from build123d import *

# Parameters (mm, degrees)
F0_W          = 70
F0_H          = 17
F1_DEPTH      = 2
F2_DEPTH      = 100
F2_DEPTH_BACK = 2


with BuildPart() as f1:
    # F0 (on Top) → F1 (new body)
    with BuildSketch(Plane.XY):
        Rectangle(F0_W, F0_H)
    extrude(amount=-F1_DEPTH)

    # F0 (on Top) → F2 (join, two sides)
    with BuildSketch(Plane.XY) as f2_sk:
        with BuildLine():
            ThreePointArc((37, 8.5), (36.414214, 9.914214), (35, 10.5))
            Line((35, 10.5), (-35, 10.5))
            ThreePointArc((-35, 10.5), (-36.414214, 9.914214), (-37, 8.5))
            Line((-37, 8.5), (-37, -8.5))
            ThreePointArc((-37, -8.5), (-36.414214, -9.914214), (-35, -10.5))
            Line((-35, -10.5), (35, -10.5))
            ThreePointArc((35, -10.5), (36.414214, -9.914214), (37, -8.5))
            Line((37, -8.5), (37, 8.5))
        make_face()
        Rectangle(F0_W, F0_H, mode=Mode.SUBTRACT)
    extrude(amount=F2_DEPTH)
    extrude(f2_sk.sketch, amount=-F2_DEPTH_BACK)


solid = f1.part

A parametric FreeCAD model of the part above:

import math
import FreeCAD as App
import Part
import Sketcher

doc = App.newDocument("Part")
params = doc.addObject("Spreadsheet::Sheet", "Params")
for row, (alias, value) in enumerate([
    ("sketch1_width", "70 mm"),
    ("sketch1_height", "17 mm"),
    ("pad1_length", "2 mm"),
    ("sketch2_radius", "1.999999 mm"),
    ("sketch2_width", "70 mm"),
    ("sketch2_height", "17 mm"),
    ("pad2_length", "100 mm"),
    ("pad2_length2", "2 mm"),
], start=1):
    params.set(f"A{row}", alias)
    params.set(f"B{row}", "=" + value)
    params.setAlias(f"B{row}", alias)

body = doc.addObject("PartDesign::Body", "Body")

sketch1 = body.newObject("Sketcher::SketchObject", "Sketch")
sketch1.AttachmentSupport = (doc.getObject("XY_Plane"), [""])
sketch1.MapMode = "FlatFace"
sketch1.addGeometry([
    Part.LineSegment(App.Vector(-35, 8, 0), App.Vector(-35, -8, 0)),
    Part.LineSegment(App.Vector(-35, -8, 0), App.Vector(35, -8, 0)),
    Part.LineSegment(App.Vector(35, -8, 0), App.Vector(35, 8, 0)),
    Part.LineSegment(App.Vector(35, 8, 0), App.Vector(-35, 8, 0)),
], False)
sketch1.addConstraint([
    Sketcher.Constraint("Coincident", 0, 2, 1, 1),
    Sketcher.Constraint("Coincident", 1, 2, 2, 1),
    Sketcher.Constraint("Coincident", 2, 2, 3, 1),
    Sketcher.Constraint("Coincident", 3, 2, 0, 1),
    Sketcher.Constraint("Vertical", 0),
    Sketcher.Constraint("Horizontal", 1),
    Sketcher.Constraint("Vertical", 2),
    Sketcher.Constraint("Horizontal", 3),
    Sketcher.Constraint("Symmetric", 0, 2, 2, 2, -1, 1),
    Sketcher.Constraint("DistanceX", 1, 1, 1, 2, 70.0),
    Sketcher.Constraint("DistanceY", 0, 2, 0, 1, 17.0),
])
sketch1.setExpression("Constraints[9]", "Params.sketch1_width")
sketch1.setExpression("Constraints[10]", "Params.sketch1_height")
pad1 = body.newObject("PartDesign::Pad", "Pad")
pad1.Profile = sketch1
pad1.setExpression("Length", "Params.pad1_length")
pad1.Reversed = True

sketch2 = body.newObject("Sketcher::SketchObject", "Sketch001")
sketch2.AttachmentSupport = (doc.getObject("XY_Plane"), [""])
sketch2.MapMode = "FlatFace"
sketch2.addGeometry([
    Part.ArcOfCircle(Part.Circle(App.Vector(35, 8.5, 0), App.Vector(0, 0, 1), 2), math.radians(0), math.radians(90)),
    Part.LineSegment(App.Vector(35, 10.5, 0), App.Vector(-35, 10.5, 0)),
    Part.ArcOfCircle(Part.Circle(App.Vector(-35, 8.5, 0), App.Vector(0, 0, 1), 2), math.radians(90), math.radians(180)),
    Part.LineSegment(App.Vector(-37, 8.5, 0), App.Vector(-37, -8.5, 0)),
    Part.ArcOfCircle(Part.Circle(App.Vector(-35, -8.5, 0), App.Vector(0, 0, 1), 2), math.radians(180), math.radians(270)),
    Part.LineSegment(App.Vector(-35, -10.5, 0), App.Vector(35, -10.5, 0)),
    Part.ArcOfCircle(Part.Circle(App.Vector(35, -8.5, 0), App.Vector(0, 0, 1), 2), math.radians(-90), math.radians(0)),
    Part.LineSegment(App.Vector(37, -8.5, 0), App.Vector(37, 8.5, 0)),
    Part.LineSegment(App.Vector(35, -8.5, 0), App.Vector(-35, -8.5, 0)),
    Part.LineSegment(App.Vector(-35, -8.5, 0), App.Vector(-35, 8.5, 0)),
    Part.LineSegment(App.Vector(-35, 8.5, 0), App.Vector(35, 8.5, 0)),
    Part.LineSegment(App.Vector(35, 8.5, 0), App.Vector(35, -8.5, 0)),
], False)
sketch2.addConstraint([
    Sketcher.Constraint("Tangent", 0, 2, 1, 1),
    Sketcher.Constraint("Tangent", 1, 2, 2, 1),
    Sketcher.Constraint("Tangent", 2, 2, 3, 1),
    Sketcher.Constraint("Tangent", 3, 2, 4, 1),
    Sketcher.Constraint("Tangent", 4, 2, 5, 1),
    Sketcher.Constraint("Tangent", 5, 2, 6, 1),
    Sketcher.Constraint("Tangent", 6, 2, 7, 1),
    Sketcher.Constraint("Tangent", 7, 2, 0, 1),
    Sketcher.Constraint("Coincident", 8, 2, 9, 1),
    Sketcher.Constraint("Coincident", 9, 2, 10, 1),
    Sketcher.Constraint("Coincident", 10, 2, 11, 1),
    Sketcher.Constraint("Coincident", 11, 2, 8, 1),
    Sketcher.Constraint("Horizontal", 1),
    Sketcher.Constraint("Vertical", 3),
    Sketcher.Constraint("Horizontal", 5),
    Sketcher.Constraint("Vertical", 7),
    Sketcher.Constraint("Horizontal", 8),
    Sketcher.Constraint("Vertical", 9),
    Sketcher.Constraint("Horizontal", 10),
    Sketcher.Constraint("Vertical", 11),
    Sketcher.Constraint("Coincident", 8, 2, 4, 3),
    Sketcher.Constraint("Coincident", 9, 2, 2, 3),
    Sketcher.Constraint("Coincident", 10, 2, 0, 3),
    Sketcher.Constraint("Equal", 4, 6),
    Sketcher.Constraint("Symmetric", 0, 3, 4, 3, -1, 1),
    Sketcher.Constraint("Radius", 0, 1.999999),
    Sketcher.Constraint("DistanceX", 1, 2, 1, 1, 70.0),
    Sketcher.Constraint("DistanceY", 3, 2, 3, 1, 17.0),
])
sketch2.setExpression("Constraints[25]", "Params.sketch2_radius")
sketch2.setExpression("Constraints[26]", "Params.sketch2_width")
sketch2.setExpression("Constraints[27]", "Params.sketch2_height")
pad2 = body.newObject("PartDesign::Pad", "Pad001")
pad2.Profile = sketch2
pad2.Type = "TwoLengths"
pad2.setExpression("Length", "Params.pad2_length")
pad2.setExpression("Length2", "Params.pad2_length2")

doc.recompute()
